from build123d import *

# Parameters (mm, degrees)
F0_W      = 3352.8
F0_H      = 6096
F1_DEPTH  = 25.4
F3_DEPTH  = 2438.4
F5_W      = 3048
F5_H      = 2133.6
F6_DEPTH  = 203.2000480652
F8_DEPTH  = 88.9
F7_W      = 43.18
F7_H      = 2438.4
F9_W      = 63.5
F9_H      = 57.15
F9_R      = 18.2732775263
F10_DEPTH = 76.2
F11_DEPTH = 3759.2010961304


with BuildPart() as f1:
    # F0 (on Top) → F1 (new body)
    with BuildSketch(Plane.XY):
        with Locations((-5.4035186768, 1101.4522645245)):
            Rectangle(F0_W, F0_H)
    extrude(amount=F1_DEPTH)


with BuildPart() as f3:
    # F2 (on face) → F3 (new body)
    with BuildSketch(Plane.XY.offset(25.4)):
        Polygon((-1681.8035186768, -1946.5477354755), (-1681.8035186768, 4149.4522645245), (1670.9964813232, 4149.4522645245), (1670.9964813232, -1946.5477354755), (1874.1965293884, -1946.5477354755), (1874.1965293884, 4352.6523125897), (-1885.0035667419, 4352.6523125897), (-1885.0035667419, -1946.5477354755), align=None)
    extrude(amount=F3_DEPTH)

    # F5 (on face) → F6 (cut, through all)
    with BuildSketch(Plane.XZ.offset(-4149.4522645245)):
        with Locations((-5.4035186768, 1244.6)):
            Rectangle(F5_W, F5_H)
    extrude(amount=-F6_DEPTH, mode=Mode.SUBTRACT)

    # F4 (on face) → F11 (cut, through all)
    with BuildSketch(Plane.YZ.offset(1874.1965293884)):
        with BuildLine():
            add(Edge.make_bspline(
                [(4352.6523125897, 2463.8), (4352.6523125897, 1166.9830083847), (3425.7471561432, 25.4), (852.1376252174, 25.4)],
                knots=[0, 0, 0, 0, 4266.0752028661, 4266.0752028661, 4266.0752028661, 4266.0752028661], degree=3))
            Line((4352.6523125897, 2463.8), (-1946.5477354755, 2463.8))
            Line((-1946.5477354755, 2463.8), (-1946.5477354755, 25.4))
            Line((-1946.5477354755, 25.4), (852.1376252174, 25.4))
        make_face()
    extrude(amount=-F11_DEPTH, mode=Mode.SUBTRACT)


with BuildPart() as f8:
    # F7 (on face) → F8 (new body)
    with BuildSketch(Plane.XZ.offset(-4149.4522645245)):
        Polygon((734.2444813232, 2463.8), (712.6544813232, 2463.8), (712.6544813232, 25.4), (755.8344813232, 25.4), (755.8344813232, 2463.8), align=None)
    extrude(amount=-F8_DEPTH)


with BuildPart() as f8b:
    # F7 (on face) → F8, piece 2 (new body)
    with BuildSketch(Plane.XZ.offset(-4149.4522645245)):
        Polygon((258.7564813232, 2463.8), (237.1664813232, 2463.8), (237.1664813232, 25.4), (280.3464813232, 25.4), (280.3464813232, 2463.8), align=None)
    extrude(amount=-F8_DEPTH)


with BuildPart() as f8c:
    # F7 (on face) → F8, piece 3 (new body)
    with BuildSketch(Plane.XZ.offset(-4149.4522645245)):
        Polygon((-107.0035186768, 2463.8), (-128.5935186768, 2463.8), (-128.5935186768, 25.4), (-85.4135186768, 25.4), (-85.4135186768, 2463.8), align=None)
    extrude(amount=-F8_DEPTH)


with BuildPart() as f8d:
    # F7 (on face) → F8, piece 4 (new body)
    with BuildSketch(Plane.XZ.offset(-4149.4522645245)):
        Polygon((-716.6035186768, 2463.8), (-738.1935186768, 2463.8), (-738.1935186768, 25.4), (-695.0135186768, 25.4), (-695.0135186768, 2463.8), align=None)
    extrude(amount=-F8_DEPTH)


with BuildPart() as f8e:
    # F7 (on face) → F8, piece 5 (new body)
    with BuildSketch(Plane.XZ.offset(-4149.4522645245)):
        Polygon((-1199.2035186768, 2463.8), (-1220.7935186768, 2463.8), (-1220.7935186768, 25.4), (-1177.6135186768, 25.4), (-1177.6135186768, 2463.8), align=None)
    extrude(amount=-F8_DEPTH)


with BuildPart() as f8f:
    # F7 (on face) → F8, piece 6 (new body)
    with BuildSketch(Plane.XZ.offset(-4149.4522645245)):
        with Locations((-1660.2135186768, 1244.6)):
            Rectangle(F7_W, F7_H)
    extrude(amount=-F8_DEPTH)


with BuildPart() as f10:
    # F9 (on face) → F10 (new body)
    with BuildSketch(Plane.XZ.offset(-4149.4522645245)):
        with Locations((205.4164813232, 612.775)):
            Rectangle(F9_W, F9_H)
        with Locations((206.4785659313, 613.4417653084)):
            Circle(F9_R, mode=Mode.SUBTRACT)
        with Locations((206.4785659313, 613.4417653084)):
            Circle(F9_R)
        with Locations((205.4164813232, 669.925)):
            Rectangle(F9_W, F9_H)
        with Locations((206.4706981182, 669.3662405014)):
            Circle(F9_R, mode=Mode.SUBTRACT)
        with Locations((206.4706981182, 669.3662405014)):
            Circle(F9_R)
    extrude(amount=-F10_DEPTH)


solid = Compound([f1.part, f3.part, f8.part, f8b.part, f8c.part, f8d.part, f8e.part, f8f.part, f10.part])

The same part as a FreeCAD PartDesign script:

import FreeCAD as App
import Part
import Sketcher
Q = App.Units.Quantity


def add_polygon(sketch, points):
    """Adds a closed chain of lines whose ends are joined by coincident constraints."""
    first, n = sketch.GeometryCount, len(points)
    for a, b in zip(points, points[1:] + points[:1]):
        sketch.addGeometry(Part.LineSegment(App.Vector(*a, 0), App.Vector(*b, 0)), False)
    for i in range(n):
        sketch.addConstraint(Sketcher.Constraint("Coincident", first + i, 2, first + (i + 1) % n, 1))

doc = App.newDocument("Part")
body = doc.addObject("PartDesign::Body", "Body")

# Sketch on XY plane
sketch1 = body.newObject("Sketcher::SketchObject", "Sketch")
sketch1.AttachmentSupport = (doc.getObject("XY_Plane"), [""])
sketch1.MapMode = "FlatFace"
add_polygon(sketch1, [(-1682, 4149), (-1682, -1947), (1671, -1947), (1671, 4149)])  # lines 0-3
sketch1.addConstraint([
    Sketcher.Constraint("Vertical", 0),
    Sketcher.Constraint("Horizontal", 1),
    Sketcher.Constraint("Vertical", 2),
    Sketcher.Constraint("Horizontal", 3),
    Sketcher.Constraint("DistanceX", 1, 1, 1, 2, Q("132 in")),
    Sketcher.Constraint("DistanceY", 0, 2, 0, 1, Q("240 in")),
    Sketcher.Constraint("DistanceX", 0, 2, -1, 1, Q("1681.803519 mm")),
    Sketcher.Constraint("DistanceY", 0, 2, -1, 1, Q("1946.547735 mm")),
])
pad1 = body.newObject("PartDesign::Pad", "Pad")
pad1.Profile = sketch1
pad1.Length = Q("1 in")
body2 = doc.addObject("PartDesign::Body", "Body001")

# Sketch on XY plane
sketch2 = body2.newObject("Sketcher::SketchObject", "Sketch001")
sketch2.AttachmentSupport = (doc.getObject("XY_Plane001"), [""])
sketch2.MapMode = "FlatFace"
sketch2.AttachmentOffset = App.Placement(App.Vector(0, 0, 1 * 25.4), App.Rotation())
add_polygon(sketch2, [(-1682, -1947), (-1682, 4149), (1671, 4149), (1671, -1947), (1874, -1947), (1874, 4353), (-1885, 4353), (-1885, -1947)])  # lines 0-7
sketch2.addConstraint([
    Sketcher.Constraint("Vertical", 0),
    Sketcher.Constraint("Horizontal", 1),
    Sketcher.Constraint("Vertical", 2),
    Sketcher.Constraint("Horizontal", 3),
    Sketcher.Constraint("Vertical", 4),
    Sketcher.Constraint("Horizontal", 5),
    Sketcher.Constraint("Vertical", 6),
    Sketcher.Constraint("Horizontal", 7),
    Sketcher.Constraint("Horizontal", 3, 2, 6, 2),
    Sketcher.Constraint("Equal", 3, 7),
    Sketcher.Constraint("DistanceX", 1, 1, 1, 2, Q("132 in")),
    Sketcher.Constraint("DistanceY", 0, 1, 0, 2, Q("240 in")),
    Sketcher.Constraint("DistanceX", 3, 1, 3, 2, Q("203.200048 mm")),
    Sketcher.Constraint("DistanceY", 4, 1, 4, 2, Q("6299.200048 mm")),
    Sketcher.Constraint("DistanceX", 0, 2, -1, 1, Q("1681.803519 mm")),
    Sketcher.Constraint("DistanceY", -1, 1, 0, 2, Q("4149.452265 mm")),
])
pad2 = body2.newObject("PartDesign::Pad", "Pad001")
pad2.Profile = sketch2
pad2.Length = Q("96 in")

# Sketch on XZ plane
sketch3 = body2.newObject("Sketcher::SketchObject", "Sketch002")
sketch3.AttachmentSupport = (doc.getObject("XZ_Plane001"), [""])
sketch3.MapMode = "FlatFace"
sketch3.AttachmentOffset = App.Placement(App.Vector(0, 0, -4149.452265), App.Rotation())
add_polygon(sketch3, [(-1529, 2311), (-1529, 178), (1519, 178), (1519, 2311)])  # lines 0-3
sketch3.addConstraint([
    Sketcher.Constraint("Vertical", 0),
    Sketcher.Constraint("Horizontal", 1),
    Sketcher.Constraint("Vertical", 2),
    Sketcher.Constraint("Horizontal", 3),
    Sketcher.Constraint("DistanceX", 1, 1, 1, 2, Q("120 in")),
    Sketcher.Constraint("DistanceY", 0, 2, 0, 1, Q("84 in")),
    Sketcher.Constraint("DistanceY", -1, 1, 0, 2, Q("7 in")),
    Sketcher.Constraint("DistanceX", 0, 2, -1, 1, Q("1529.403519 mm")),
])
pocket1 = body2.newObject("PartDesign::Pocket", "Pocket")
pocket1.Profile = sketch3
pocket1.Type = "ThroughAll"

# Sketch on YZ plane
sketch4 = body2.newObject("Sketcher::SketchObject", "Sketch003")
sketch4.AttachmentSupport = (doc.getObject("YZ_Plane001"), [""])
sketch4.MapMode = "FlatFace"
sketch4.AttachmentOffset = App.Placement(App.Vector(0, 0, 1874.196529), App.Rotation())
sketch4.addGeometry([
    Part.BSplineCurve([App.Vector(4352.652313, 2463.8, 0), App.Vector(4352.652313, 1166.983008, 0), App.Vector(3425.747156, 25.4, 0), App.Vector(852.137625, 25.4, 0)], [4, 4], [0, 4266.075202866], False, 3, [1, 1, 1, 1], False),
    Part.LineSegment(App.Vector(4352.652313, 2463.8, 0), App.Vector(-1946.547735, 2463.8, 0)),
    Part.LineSegment(App.Vector(-1946.547735, 2463.8, 0), App.Vector(-1946.547735, 25.4, 0)),
    Part.LineSegment(App.Vector(-1946.547735, 25.4, 0), App.Vector(852.137625, 25.4, 0)),
], False)
sketch4.addConstraint([
    Sketcher.Constraint("Block", 0),
    Sketcher.Constraint("Coincident", 0, 1, 1, 1),
    Sketcher.Constraint("Coincident", 1, 2, 2, 1),
    Sketcher.Constraint("Coincident", 2, 2, 3, 1),
    Sketcher.Constraint("Coincident", 3, 2, 0, 2),
    Sketcher.Constraint("Horizontal", 1),
    Sketcher.Constraint("Vertical", 2),
    Sketcher.Constraint("Horizontal", 3),
    Sketcher.Constraint("DistanceX", 1, 2, 1, 1, Q("6299.200048 mm")),
])
pocket2 = body2.newObject("PartDesign::Pocket", "Pocket001")
pocket2.Profile = sketch4
pocket2.Type = "ThroughAll"
body3 = doc.addObject("PartDesign::Body", "Body002")

# Sketch on XZ plane
sketch5 = body3.newObject("Sketcher::SketchObject", "Sketch004")
sketch5.AttachmentSupport = (doc.getObject("XZ_Plane002"), [""])
sketch5.MapMode = "FlatFace"
sketch5.AttachmentOffset = App.Placement(App.Vector(0, 0, -4149.452265), App.Rotation())
add_polygon(sketch5, [(713, 2464), (713, 25), (756, 25), (756, 2464)])  # lines 0-3
sketch5.addConstraint([
    Sketcher.Constraint("Vertical", 0),
    Sketcher.Constraint("Horizontal", 1),
    Sketcher.Constraint("Vertical", 2),
    Sketcher.Constraint("Horizontal", 3),
    Sketcher.Constraint("DistanceY", 0, 2, 0, 1, Q("96 in")),
    Sketcher.Constraint("DistanceX", 1, 1, 1, 2, Q("1.7 in")),
    Sketcher.Constraint("DistanceY", -1, 1, 0, 2, Q("1 in")),
    Sketcher.Constraint("DistanceX", -1, 1, 0, 2, Q("712.654481 mm")),
])
pad3 = body3.newObject("PartDesign::Pad", "Pad002")
pad3.Profile = sketch5
pad3.Length = Q("3.5 in")
pad3.Reversed = True
body4 = doc.addObject("PartDesign::Body", "Body003")

# Sketch on XZ plane
sketch6 = body4.newObject("Sketcher::SketchObject", "Sketch005")
sketch6.AttachmentSupport = (doc.getObject("XZ_Plane003"), [""])
sketch6.MapMode = "FlatFace"
sketch6.AttachmentOffset = App.Placement(App.Vector(0, 0, -4149.452265), App.Rotation())
add_polygon(sketch6, [(237, 2464), (237, 25), (280, 25), (280, 2464)])  # lines 0-3
sketch6.addConstraint([
    Sketcher.Constraint("Vertical", 0),
    Sketcher.Constraint("Horizontal", 1),
    Sketcher.Constraint("Vertical", 2),
    Sketcher.Constraint("Horizontal", 3),
    Sketcher.Constraint("DistanceY", 0, 2, 0, 1, Q("96 in")),
    Sketcher.Constraint("DistanceX", 1, 1, 1, 2, Q("1.7 in")),
    Sketcher.Constraint("DistanceY", -1, 1, 0, 2, Q("1 in")),
    Sketcher.Constraint("DistanceX", -1, 1, 0, 2, Q("237.166481 mm")),
])
pad4 = body4.newObject("PartDesign::Pad", "Pad003")
pad4.Profile = sketch6
pad4.Length = Q("3.5 in")
pad4.Reversed = True
body5 = doc.addObject("PartDesign::Body", "Body004")

# Sketch on XZ plane
sketch7 = body5.newObject("Sketcher::SketchObject", "Sketch006")
sketch7.AttachmentSupport = (doc.getObject("XZ_Plane004"), [""])
sketch7.MapMode = "FlatFace"
sketch7.AttachmentOffset = App.Placement(App.Vector(0, 0, -4149.452265), App.Rotation())
add_polygon(sketch7, [(-129, 2464), (-129, 25), (-85, 25), (-85, 2464)])  # lines 0-3
sketch7.addConstraint([
    Sketcher.Constraint("Vertical", 0),
    Sketcher.Constraint("Horizontal", 1),
    Sketcher.Constraint("Vertical", 2),
    Sketcher.Constraint("Horizontal", 3),
    Sketcher.Constraint("DistanceY", 0, 2, 0, 1, Q("96 in")),
    Sketcher.Constraint("DistanceX", 1, 1, 1, 2, Q("1.7 in")),
    Sketcher.Constraint("DistanceY", -1, 1, 0, 2, Q("1 in")),
    Sketcher.Constraint("DistanceX", 0, 2, -1, 1, Q("128.593519 mm")),
])
pad5 = body5.newObject("PartDesign::Pad", "Pad004")
pad5.Profile = sketch7
pad5.Length = Q("3.5 in")
pad5.Reversed = True
body6 = doc.addObject("PartDesign::Body", "Body005")

# Sketch on XZ plane
sketch8 = body6.newObject("Sketcher::SketchObject", "Sketch007")
sketch8.AttachmentSupport = (doc.getObject("XZ_Plane005"), [""])
sketch8.MapMode = "FlatFace"
sketch8.AttachmentOffset = App.Placement(App.Vector(0, 0, -4149.452265), App.Rotation())
add_polygon(sketch8, [(-738, 2464), (-738, 25), (-695, 25), (-695, 2464)])  # lines 0-3
sketch8.addConstraint([
    Sketcher.Constraint("Vertical", 0),
    Sketcher.Constraint("Horizontal", 1),
    Sketcher.Constraint("Vertical", 2),
    Sketcher.Constraint("Horizontal", 3),
    Sketcher.Constraint("DistanceY", 0, 2, 0, 1, Q("96 in")),
    Sketcher.Constraint("DistanceX", 1, 1, 1, 2, Q("1.7 in")),
    Sketcher.Constraint("DistanceY", -1, 1, 0, 2, Q("1 in")),
    Sketcher.Constraint("DistanceX", 0, 2, -1, 1, Q("738.193519 mm")),
])
pad6 = body6.newObject("PartDesign::Pad", "Pad005")
pad6.Profile = sketch8
pad6.Length = Q("3.5 in")
pad6.Reversed = True
body7 = doc.addObject("PartDesign::Body", "Body006")

# Sketch on XZ plane
sketch9 = body7.newObject("Sketcher::SketchObject", "Sketch008")
sketch9.AttachmentSupport = (doc.getObject("XZ_Plane006"), [""])
sketch9.MapMode = "FlatFace"
sketch9.AttachmentOffset = App.Placement(App.Vector(0, 0, -4149.452265), App.Rotation())
add_polygon(sketch9, [(-1221, 2464), (-1221, 25), (-1178, 25), (-1178, 2464)])  # lines 0-3
sketch9.addConstraint([
    Sketcher.Constraint("Vertical", 0),
    Sketcher.Constraint("Horizontal", 1),
    Sketcher.Constraint("Vertical", 2),
    Sketcher.Constraint("Horizontal", 3),
    Sketcher.Constraint("DistanceY", 0, 2, 0, 1, Q("96 in")),
    Sketcher.Constraint("DistanceX", 1, 1, 1, 2, Q("1.7 in")),
    Sketcher.Constraint("DistanceY", -1, 1, 0, 2, Q("1 in")),
    Sketcher.Constraint("DistanceX", 0, 2, -1, 1, Q("1220.793519 mm")),
])
pad7 = body7.newObject("PartDesign::Pad", "Pad006")
pad7.Profile = sketch9
pad7.Length = Q("3.5 in")
pad7.Reversed = True
body8 = doc.addObject("PartDesign::Body", "Body007")

# Sketch on XZ plane
sketch10 = body8.newObject("Sketcher::SketchObject", "Sketch009")
sketch10.AttachmentSupport = (doc.getObject("XZ_Plane007"), [""])
sketch10.MapMode = "FlatFace"
sketch10.AttachmentOffset = App.Placement(App.Vector(0, 0, -4149.452265), App.Rotation())
add_polygon(sketch10, [(-1682, 2464), (-1682, 25), (-1639, 25), (-1639, 2464)])  # lines 0-3
sketch10.addConstraint([
    Sketcher.Constraint("Vertical", 0),
    Sketcher.Constraint("Horizontal", 1),
    Sketcher.Constraint("Vertical", 2),
    Sketcher.Constraint("Horizontal", 3),
    Sketcher.Constraint("DistanceY", 0, 2, 0, 1, Q("96 in")),
    Sketcher.Constraint("DistanceX", 1, 1, 1, 2, Q("1.7 in")),
    Sketcher.Constraint("DistanceY", -1, 1, 0, 2, Q("1 in")),
    Sketcher.Constraint("DistanceX", 0, 2, -1, 1, Q("1681.803519 mm")),
])
pad8 = body8.newObject("PartDesign::Pad", "Pad007")
pad8.Profile = sketch10
pad8.Length = Q("3.5 in")
pad8.Reversed = True
body9 = doc.addObject("PartDesign::Body", "Body008")

# Sketch on XZ plane
sketch11 = body9.newObject("Sketcher::SketchObject", "Sketch010")
sketch11.AttachmentSupport = (doc.getObject("XZ_Plane008"), [""])
sketch11.MapMode = "FlatFace"
sketch11.AttachmentOffset = App.Placement(App.Vector(0, 0, -4149.452265), App.Rotation())
add_polygon(sketch11, [(174, 584), (237, 584), (237, 698), (174, 698)])  # lines 0-3
sketch11.addConstraint([
    Sketcher.Constraint("Horizontal", 0),
    Sketcher.Constraint("Vertical", 1),
    Sketcher.Constraint("Horizontal", 2),
    Sketcher.Constraint("Vertical", 3),
    Sketcher.Constraint("DistanceX", 0, 1, 0, 2, Q("2.5 in")),
    Sketcher.Constraint("DistanceY", 1, 1, 1, 2, Q("4.5 in")),
    Sketcher.Constraint("DistanceY", -1, 1, 0, 2, Q("23 in")),
    Sketcher.Constraint("DistanceX", -1, 1, 0, 2, Q("237.166481 mm")),
])
pad9 = body9.newObject("PartDesign::Pad", "Pad008")
pad9.Profile = sketch11
pad9.Length = Q("3 in")
pad9.Reversed = True

doc.recompute()
